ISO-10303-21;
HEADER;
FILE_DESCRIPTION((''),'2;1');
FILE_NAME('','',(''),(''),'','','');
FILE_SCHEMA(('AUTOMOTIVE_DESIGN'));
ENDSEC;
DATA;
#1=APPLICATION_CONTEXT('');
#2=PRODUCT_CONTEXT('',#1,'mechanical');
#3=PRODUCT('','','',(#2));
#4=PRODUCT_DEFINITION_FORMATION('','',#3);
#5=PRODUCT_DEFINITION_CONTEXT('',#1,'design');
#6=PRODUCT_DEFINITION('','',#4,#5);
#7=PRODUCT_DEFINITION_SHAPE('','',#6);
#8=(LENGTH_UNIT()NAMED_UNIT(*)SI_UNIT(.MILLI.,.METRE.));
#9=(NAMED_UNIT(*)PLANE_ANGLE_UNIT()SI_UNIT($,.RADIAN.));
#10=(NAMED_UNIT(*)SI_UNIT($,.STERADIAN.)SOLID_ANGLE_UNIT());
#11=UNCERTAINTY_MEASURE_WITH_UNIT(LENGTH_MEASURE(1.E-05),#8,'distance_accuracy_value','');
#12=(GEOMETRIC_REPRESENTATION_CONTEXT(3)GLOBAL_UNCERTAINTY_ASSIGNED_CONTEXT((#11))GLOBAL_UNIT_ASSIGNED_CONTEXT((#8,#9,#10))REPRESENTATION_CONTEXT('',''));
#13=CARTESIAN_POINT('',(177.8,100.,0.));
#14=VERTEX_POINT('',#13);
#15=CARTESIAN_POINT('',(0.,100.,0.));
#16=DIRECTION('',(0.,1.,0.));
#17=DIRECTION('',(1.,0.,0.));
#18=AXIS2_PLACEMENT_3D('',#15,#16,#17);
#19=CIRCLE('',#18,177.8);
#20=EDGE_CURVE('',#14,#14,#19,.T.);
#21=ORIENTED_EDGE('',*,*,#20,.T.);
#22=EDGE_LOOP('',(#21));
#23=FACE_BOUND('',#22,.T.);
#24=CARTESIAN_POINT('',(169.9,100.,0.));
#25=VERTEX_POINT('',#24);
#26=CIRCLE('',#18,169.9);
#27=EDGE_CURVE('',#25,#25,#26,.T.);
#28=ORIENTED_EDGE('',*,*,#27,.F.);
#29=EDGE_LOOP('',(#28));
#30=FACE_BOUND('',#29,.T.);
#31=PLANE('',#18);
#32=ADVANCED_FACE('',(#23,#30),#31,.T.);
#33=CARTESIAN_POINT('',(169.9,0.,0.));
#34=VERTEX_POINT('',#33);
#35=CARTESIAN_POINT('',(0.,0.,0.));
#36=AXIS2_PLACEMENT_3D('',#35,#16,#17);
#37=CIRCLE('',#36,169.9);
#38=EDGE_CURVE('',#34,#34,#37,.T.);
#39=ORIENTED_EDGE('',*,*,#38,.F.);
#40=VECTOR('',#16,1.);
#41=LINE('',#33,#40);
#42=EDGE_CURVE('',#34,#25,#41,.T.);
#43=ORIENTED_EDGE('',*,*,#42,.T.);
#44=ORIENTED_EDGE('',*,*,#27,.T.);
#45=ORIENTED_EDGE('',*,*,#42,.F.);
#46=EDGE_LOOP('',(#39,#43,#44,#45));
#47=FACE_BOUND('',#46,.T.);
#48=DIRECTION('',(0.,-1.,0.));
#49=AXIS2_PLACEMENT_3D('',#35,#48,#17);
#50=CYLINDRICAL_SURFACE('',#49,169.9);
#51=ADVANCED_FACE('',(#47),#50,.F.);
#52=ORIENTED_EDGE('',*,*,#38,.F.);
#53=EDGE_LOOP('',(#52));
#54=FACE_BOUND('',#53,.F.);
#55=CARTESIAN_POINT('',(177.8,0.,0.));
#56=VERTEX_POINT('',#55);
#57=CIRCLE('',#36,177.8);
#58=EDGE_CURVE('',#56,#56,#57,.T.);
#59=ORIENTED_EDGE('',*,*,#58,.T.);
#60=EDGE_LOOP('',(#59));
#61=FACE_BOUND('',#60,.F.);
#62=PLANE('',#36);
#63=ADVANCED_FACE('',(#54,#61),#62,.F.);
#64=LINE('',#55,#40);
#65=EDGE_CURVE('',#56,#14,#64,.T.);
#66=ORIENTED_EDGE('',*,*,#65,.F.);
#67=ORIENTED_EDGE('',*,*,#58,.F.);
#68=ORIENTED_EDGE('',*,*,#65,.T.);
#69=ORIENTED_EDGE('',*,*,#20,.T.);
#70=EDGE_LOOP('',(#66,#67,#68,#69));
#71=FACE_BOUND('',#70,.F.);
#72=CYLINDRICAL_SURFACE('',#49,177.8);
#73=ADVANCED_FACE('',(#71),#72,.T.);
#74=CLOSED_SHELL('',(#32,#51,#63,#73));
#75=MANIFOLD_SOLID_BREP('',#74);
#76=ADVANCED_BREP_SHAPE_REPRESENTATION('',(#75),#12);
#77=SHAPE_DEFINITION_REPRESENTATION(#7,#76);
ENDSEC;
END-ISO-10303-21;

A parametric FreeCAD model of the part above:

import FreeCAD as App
import Part
import Sketcher

V = App.Vector
Q = App.Units.Quantity

doc = App.newDocument("Part")
body = doc.addObject("PartDesign::Body", "Body")

# Sketch on XZ plane
sketch1 = doc.addObject("Sketcher::SketchObject", "Sketch")
body.addObject(sketch1)
sketch1.AttachmentSupport = (doc.XZ_Plane, [""])
sketch1.MapMode = "FlatFace"
sketch1.addGeometry([
    Part.Circle(V(0, 0, 0), V(0, 0, 1), 178),
    Part.Circle(V(0, 0, 0), V(0, 0, 1), 170),
], False)
sketch1.addConstraint([
    Sketcher.Constraint("Coincident", 0, 3, -1, 1),
    Sketcher.Constraint("Coincident", 1, 3, -1, 1),
    Sketcher.Constraint("Diameter", 0, Q("14 in")),
    Sketcher.Constraint("Diameter", 1, Q("339.8 mm")),
])
pad1 = doc.addObject("PartDesign::Pad", "Pad")
body.addObject(pad1)
pad1.Profile = sketch1
pad1.Length = Q("3.9370079 in")
pad1.Reversed = True

doc.recompute()
